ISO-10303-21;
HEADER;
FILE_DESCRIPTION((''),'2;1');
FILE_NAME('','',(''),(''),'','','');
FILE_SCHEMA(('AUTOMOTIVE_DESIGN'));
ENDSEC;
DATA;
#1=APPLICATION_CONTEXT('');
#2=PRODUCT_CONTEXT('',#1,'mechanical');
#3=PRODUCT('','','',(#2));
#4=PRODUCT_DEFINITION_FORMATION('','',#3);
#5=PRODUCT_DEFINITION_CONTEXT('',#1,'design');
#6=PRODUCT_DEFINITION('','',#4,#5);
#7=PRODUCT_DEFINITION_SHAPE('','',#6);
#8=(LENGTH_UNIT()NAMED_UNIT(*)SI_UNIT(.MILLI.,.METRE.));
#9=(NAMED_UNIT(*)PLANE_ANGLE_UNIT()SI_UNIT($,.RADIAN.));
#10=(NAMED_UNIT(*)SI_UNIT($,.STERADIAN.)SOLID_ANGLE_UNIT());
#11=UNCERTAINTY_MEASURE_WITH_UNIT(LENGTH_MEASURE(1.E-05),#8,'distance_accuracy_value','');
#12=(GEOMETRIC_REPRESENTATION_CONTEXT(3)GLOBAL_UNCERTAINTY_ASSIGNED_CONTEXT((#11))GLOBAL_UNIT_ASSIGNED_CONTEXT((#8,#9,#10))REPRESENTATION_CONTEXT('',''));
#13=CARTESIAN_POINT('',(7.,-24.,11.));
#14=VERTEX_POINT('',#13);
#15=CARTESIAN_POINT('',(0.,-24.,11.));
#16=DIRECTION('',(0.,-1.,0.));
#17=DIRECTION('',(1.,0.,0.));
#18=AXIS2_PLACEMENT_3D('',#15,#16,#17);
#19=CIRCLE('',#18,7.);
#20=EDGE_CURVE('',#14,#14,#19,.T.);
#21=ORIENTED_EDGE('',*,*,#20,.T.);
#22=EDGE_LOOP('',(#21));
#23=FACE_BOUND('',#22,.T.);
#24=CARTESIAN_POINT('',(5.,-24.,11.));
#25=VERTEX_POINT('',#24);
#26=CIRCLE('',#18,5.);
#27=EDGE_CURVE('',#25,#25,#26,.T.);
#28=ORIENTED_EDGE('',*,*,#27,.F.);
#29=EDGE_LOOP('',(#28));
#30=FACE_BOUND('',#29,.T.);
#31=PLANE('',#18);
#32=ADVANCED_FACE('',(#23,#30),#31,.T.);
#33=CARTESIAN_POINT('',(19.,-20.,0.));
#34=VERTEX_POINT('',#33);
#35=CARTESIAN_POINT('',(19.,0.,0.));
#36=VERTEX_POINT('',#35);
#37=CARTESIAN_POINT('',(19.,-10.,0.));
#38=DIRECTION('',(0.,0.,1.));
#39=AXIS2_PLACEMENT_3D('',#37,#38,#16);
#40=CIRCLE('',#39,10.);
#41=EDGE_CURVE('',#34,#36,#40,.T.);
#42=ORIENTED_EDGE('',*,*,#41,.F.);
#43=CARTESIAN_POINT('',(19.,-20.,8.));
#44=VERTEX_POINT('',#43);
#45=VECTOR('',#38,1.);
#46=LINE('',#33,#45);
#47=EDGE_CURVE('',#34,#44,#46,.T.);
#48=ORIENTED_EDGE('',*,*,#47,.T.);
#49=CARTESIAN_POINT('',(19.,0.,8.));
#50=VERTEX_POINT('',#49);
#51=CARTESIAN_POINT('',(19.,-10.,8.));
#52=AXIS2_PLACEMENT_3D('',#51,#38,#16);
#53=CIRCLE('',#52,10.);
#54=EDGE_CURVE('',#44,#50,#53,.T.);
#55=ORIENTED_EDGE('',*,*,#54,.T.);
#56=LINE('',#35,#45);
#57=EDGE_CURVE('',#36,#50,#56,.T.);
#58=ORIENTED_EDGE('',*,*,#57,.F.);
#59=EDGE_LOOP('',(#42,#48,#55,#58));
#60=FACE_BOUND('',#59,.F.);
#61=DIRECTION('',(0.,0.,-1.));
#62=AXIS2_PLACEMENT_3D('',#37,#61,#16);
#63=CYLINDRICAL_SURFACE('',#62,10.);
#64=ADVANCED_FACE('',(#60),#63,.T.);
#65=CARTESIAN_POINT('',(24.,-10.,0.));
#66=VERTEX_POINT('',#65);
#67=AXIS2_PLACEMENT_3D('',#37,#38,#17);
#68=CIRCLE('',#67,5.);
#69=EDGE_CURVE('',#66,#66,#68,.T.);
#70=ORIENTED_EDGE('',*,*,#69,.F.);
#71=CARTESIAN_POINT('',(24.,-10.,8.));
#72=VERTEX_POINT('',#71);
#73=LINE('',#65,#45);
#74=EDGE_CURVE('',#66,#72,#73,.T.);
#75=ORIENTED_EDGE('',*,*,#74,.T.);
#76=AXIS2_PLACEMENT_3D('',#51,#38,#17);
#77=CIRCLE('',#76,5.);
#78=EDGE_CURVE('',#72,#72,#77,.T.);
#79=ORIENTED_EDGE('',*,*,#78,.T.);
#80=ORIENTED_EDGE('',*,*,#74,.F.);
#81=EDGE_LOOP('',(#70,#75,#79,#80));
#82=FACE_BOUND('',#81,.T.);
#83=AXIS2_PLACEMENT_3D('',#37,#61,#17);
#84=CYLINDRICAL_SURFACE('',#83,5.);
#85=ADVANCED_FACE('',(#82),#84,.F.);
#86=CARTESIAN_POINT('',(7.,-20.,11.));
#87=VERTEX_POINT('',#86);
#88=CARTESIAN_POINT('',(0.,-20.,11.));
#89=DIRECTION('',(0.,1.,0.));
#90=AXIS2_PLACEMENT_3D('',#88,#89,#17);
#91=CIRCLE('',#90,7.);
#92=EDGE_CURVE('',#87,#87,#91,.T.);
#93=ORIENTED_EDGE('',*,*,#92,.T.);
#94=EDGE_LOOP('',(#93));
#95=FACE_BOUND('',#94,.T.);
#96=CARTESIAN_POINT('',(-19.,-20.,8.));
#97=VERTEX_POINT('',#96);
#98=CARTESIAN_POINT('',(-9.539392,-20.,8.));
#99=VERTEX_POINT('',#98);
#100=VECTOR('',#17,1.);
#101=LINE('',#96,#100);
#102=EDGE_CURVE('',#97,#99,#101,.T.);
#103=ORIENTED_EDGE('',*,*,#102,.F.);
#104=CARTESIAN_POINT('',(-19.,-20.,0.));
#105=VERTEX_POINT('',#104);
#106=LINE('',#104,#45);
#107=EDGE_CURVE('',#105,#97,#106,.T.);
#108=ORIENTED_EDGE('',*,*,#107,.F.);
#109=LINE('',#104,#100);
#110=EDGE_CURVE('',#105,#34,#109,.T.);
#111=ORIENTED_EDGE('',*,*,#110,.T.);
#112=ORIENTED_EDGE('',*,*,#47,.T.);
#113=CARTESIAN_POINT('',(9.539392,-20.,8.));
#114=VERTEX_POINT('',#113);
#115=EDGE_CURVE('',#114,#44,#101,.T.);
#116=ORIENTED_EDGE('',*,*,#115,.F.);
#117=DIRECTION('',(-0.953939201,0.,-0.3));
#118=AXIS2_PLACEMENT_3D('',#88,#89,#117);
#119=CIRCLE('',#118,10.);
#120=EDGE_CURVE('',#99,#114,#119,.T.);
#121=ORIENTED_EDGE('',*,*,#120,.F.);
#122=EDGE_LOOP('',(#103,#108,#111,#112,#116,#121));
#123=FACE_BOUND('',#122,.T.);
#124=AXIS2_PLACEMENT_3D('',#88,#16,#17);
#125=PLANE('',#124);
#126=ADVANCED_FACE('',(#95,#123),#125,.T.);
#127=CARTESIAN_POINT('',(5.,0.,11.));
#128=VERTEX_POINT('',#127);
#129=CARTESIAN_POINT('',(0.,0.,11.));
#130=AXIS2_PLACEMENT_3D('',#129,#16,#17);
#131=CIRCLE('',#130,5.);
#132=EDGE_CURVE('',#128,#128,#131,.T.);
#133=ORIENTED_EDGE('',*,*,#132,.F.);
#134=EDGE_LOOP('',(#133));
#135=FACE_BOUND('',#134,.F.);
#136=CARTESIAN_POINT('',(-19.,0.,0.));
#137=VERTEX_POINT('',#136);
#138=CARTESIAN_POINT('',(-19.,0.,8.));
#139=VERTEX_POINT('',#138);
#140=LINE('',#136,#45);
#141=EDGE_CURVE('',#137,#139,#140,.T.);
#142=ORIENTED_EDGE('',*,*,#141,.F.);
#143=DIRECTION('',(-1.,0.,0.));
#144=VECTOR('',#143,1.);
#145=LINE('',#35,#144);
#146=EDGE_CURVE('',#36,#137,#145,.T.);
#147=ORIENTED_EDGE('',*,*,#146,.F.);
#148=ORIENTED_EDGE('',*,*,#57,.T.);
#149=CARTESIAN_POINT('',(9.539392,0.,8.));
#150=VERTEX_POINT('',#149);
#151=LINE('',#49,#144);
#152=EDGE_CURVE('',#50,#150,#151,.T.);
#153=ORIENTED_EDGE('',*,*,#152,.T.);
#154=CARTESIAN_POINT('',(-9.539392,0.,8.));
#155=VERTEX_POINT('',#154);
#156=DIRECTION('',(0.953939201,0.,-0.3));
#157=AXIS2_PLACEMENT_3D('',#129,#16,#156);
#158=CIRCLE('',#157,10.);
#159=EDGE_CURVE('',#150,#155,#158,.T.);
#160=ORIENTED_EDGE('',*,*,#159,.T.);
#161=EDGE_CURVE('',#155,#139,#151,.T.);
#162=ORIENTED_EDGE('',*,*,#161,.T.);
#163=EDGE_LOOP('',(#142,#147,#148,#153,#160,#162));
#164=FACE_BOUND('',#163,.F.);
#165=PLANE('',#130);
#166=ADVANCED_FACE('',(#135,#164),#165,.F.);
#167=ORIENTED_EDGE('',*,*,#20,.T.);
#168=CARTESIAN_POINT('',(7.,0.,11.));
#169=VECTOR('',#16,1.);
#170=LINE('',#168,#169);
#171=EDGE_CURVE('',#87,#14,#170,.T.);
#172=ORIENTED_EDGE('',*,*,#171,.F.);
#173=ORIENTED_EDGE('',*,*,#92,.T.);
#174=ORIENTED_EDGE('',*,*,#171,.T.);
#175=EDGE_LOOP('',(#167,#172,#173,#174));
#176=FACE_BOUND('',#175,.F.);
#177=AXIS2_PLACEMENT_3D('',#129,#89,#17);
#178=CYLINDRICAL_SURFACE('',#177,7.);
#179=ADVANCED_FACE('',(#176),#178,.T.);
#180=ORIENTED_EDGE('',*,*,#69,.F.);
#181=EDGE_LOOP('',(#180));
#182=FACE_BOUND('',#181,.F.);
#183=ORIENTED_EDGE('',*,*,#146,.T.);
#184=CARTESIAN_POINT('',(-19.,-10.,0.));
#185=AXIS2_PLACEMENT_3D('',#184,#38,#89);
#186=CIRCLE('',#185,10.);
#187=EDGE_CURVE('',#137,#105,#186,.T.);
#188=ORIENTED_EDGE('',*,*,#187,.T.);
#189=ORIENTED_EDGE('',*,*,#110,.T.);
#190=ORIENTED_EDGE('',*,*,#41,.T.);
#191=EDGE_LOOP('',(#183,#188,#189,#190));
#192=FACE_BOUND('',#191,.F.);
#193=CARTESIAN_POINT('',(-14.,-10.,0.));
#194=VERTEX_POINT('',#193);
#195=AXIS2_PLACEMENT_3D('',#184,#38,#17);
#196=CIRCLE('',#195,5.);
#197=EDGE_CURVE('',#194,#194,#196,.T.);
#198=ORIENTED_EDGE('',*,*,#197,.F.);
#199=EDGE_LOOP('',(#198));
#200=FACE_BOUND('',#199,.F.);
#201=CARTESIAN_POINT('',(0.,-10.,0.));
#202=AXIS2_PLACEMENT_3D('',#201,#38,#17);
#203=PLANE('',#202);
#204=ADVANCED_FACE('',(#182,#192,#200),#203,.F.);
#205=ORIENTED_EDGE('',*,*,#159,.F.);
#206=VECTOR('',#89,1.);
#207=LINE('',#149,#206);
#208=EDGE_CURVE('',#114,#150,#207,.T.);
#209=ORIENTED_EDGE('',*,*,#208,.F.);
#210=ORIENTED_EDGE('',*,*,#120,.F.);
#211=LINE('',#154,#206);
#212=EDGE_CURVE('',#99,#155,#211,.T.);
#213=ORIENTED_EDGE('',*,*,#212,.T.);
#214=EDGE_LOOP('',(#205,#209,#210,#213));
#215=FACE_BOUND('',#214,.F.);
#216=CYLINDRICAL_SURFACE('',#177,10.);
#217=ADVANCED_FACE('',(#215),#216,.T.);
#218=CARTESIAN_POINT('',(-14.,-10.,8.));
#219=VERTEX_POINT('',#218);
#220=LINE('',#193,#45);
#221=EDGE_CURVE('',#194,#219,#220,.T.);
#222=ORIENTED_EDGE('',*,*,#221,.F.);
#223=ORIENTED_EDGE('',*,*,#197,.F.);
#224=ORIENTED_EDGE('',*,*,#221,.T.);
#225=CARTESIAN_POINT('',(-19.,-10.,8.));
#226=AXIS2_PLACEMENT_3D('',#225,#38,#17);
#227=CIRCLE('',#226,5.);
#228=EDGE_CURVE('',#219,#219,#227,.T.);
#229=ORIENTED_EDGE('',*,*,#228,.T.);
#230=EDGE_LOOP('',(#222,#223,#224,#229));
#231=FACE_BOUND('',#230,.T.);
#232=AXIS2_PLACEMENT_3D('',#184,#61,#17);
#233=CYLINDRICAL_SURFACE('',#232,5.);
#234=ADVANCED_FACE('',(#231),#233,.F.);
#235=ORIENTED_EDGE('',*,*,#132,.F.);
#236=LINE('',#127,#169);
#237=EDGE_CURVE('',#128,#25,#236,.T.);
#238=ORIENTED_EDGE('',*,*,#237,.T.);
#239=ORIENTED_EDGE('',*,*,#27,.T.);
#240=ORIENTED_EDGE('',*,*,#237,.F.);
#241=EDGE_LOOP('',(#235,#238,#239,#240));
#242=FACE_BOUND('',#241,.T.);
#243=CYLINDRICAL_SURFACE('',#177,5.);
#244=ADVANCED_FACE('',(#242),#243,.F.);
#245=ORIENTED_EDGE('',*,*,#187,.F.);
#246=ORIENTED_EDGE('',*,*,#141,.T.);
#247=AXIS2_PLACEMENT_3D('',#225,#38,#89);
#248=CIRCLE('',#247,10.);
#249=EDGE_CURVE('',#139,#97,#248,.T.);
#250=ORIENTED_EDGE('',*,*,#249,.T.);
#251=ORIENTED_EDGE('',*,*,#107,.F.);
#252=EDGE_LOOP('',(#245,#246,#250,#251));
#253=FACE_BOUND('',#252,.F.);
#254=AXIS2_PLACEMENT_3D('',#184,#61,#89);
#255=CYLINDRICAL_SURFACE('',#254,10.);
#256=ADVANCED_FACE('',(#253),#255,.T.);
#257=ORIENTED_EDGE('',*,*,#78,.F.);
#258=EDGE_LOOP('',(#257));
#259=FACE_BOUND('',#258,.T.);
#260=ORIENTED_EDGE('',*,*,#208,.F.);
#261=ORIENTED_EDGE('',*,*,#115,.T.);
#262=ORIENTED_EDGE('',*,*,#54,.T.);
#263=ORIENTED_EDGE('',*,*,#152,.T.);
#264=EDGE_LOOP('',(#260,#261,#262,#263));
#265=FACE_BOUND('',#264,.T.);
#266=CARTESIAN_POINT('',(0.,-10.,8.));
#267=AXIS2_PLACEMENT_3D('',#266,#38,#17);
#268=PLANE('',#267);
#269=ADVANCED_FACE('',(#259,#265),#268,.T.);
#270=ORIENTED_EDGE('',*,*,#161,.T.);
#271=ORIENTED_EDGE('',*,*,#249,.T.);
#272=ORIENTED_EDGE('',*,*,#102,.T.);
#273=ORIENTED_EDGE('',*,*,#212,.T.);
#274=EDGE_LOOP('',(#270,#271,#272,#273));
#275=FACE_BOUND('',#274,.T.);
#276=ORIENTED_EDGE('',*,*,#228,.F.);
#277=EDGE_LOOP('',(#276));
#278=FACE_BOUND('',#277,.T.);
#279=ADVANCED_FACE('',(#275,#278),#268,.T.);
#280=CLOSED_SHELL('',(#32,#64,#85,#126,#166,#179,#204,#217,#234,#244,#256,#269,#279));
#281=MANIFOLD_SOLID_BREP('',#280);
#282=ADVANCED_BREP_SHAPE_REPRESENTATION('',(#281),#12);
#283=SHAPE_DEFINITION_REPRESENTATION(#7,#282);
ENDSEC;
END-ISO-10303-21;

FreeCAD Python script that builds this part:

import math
import FreeCAD as App
import Part
import Sketcher
from FreeCAD import Vector

doc = App.newDocument("Part")
params = doc.addObject("Spreadsheet::Sheet", "Params")
for row, (alias, value) in enumerate([
    ("sketch1_diameter", "10 mm"),
    ("sketch1_radius", "10 mm"),
    ("sketch1_width", "38 mm"),
    ("pad1_length", "8 mm"),
    ("sketch2_diameter", "20 mm"),
    ("sketch2_diameter2", "14 mm"),
    ("pad2_length", "20 mm"),
    ("sketch3_diameter", "14 mm"),
    ("sketch3_diameter2", "10 mm"),
    ("pad3_length", "24 mm"),
    ("sketch4_diameter", "10 mm"),
    ("hole_diameter", "10 mm"),
    ("hole_depth", "20 mm"),
], start=1):
    params.set(f"A{row}", alias)
    params.set(f"B{row}", "=" + value)
    params.setAlias(f"B{row}", alias)

body = doc.addObject("PartDesign::Body", "Body")

# Sketch on XY plane
sketch1 = body.newObject("Sketcher::SketchObject", "Sketch")
sketch1.AttachmentSupport = (doc.getObject("XY_Plane"), [""])
sketch1.MapMode = "FlatFace"
sketch1.addGeometry([
    Part.LineSegment(Vector(19, 0, 0), Vector(-19, 0, 0)),  # 0
    Part.ArcOfCircle(Part.Circle(Vector(-19, -10, 0), Vector(0, 0, 1), 10), math.radians(90), math.radians(270)),  # 1
    Part.LineSegment(Vector(-19, -20, 0), Vector(19, -20, 0)),  # 2
    Part.ArcOfCircle(Part.Circle(Vector(19, -10, 0), Vector(0, 0, 1), 10), math.radians(-90), math.radians(90)),  # 3
    Part.Circle(Vector(-19, -10, 0), Vector(0, 0, 1), 5),  # 4
    Part.Circle(Vector(19, -10, 0), Vector(0, 0, 1), 5),  # 5
], False)
sketch1.addConstraint([
    Sketcher.Constraint("Tangent", 0, 2, 1, 1),
    Sketcher.Constraint("Tangent", 1, 2, 2, 1),
    Sketcher.Constraint("Tangent", 2, 2, 3, 1),
    Sketcher.Constraint("Tangent", 3, 2, 0, 1),
    Sketcher.Constraint("Horizontal", 0),
    Sketcher.Constraint("Horizontal", 2),
    Sketcher.Constraint("Coincident", 4, 3, 1, 3),
    Sketcher.Constraint("Coincident", 5, 3, 3, 3),
    Sketcher.Constraint("Equal", 4, 5),
    Sketcher.Constraint("Symmetric", 0, 2, 3, 2, -1, 1),
    Sketcher.Constraint("Diameter", 4, 10.0),
    Sketcher.Constraint("Radius", 1, 10.0),
    Sketcher.Constraint("DistanceX", 0, 2, 0, 1, 38.0),
])
sketch1.setExpression("Constraints[10]", "Params.sketch1_diameter")
sketch1.setExpression("Constraints[11]", "Params.sketch1_radius")
sketch1.setExpression("Constraints[12]", "Params.sketch1_width")
pad1 = body.newObject("PartDesign::Pad", "Pad")
pad1.Profile = sketch1
pad1.setExpression("Length", "Params.pad1_length")

# Sketch on XZ plane
sketch2 = body.newObject("Sketcher::SketchObject", "Sketch001")
sketch2.AttachmentSupport = (doc.getObject("XZ_Plane"), [""])
sketch2.MapMode = "FlatFace"
sketch2.addGeometry([
    Part.Circle(Vector(0, 11, 0), Vector(0, 0, 1), 10),
    Part.Circle(Vector(0, 11, 0), Vector(0, 0, 1), 7),
], False)
sketch2.addConstraint([
    Sketcher.Constraint("Coincident", 1, 3, 0, 3),
    Sketcher.Constraint("PointOnObject", 0, 3, -2),
    Sketcher.Constraint("Diameter", 0, 20.0),
    Sketcher.Constraint("Diameter", 1, 14.0),
    Sketcher.Constraint("DistanceY", -1, 1, 0, 3, 11.0),
])
sketch2.setExpression("Constraints[2]", "Params.sketch2_diameter")
sketch2.setExpression("Constraints[3]", "Params.sketch2_diameter2")
pad2 = body.newObject("PartDesign::Pad", "Pad001")
pad2.Profile = sketch2
pad2.setExpression("Length", "Params.pad2_length")

# Sketch on XZ plane
sketch3 = body.newObject("Sketcher::SketchObject", "Sketch002")
sketch3.AttachmentSupport = (doc.getObject("XZ_Plane"), [""])
sketch3.MapMode = "FlatFace"
sketch3.addGeometry([
    Part.Circle(Vector(0, 11, 0), Vector(0, 0, 1), 7),
    Part.Circle(Vector(0, 11, 0), Vector(0, 0, 1), 5),
], False)
sketch3.addConstraint([
    Sketcher.Constraint("Coincident", 1, 3, 0, 3),
    Sketcher.Constraint("PointOnObject", 0, 3, -2),
    Sketcher.Constraint("Diameter", 0, 14.0),
    Sketcher.Constraint("Diameter", 1, 10.0),
    Sketcher.Constraint("DistanceY", -1, 1, 0, 3, 11.0),
])
sketch3.setExpression("Constraints[2]", "Params.sketch3_diameter")
sketch3.setExpression("Constraints[3]", "Params.sketch3_diameter2")
pad3 = body.newObject("PartDesign::Pad", "Pad002")
pad3.Profile = sketch3
pad3.setExpression("Length", "Params.pad3_length")

# Sketch on XZ plane
sketch4 = body.newObject("Sketcher::SketchObject", "Sketch003")
sketch4.AttachmentSupport = (doc.getObject("XZ_Plane"), [""])
sketch4.MapMode = "FlatFace"
sketch4.addGeometry(Part.Circle(Vector(0, 11, 0), Vector(0, 0, 1), 5), False)
sketch4.addConstraint([
    Sketcher.Constraint("PointOnObject", 0, 3, -2),
    Sketcher.Constraint("Diameter", 0, 10.0),
    Sketcher.Constraint("DistanceY", -1, 1, 0, 3, 11.0),
])
sketch4.setExpression("Constraints[1]", "Params.sketch4_diameter")
doc.recompute()
hole = body.newObject("PartDesign::Hole", "Hole")
hole.Profile = sketch4
hole.ThreadType = "None"
hole.setExpression("Diameter", "Params.hole_diameter")
hole.DepthType = "Dimension"
hole.setExpression("Depth", "Params.hole_depth")
hole.DrillPoint = "Angled"
hole.DrillPointAngle = 118
hole.Reversed = True

doc.recompute()
